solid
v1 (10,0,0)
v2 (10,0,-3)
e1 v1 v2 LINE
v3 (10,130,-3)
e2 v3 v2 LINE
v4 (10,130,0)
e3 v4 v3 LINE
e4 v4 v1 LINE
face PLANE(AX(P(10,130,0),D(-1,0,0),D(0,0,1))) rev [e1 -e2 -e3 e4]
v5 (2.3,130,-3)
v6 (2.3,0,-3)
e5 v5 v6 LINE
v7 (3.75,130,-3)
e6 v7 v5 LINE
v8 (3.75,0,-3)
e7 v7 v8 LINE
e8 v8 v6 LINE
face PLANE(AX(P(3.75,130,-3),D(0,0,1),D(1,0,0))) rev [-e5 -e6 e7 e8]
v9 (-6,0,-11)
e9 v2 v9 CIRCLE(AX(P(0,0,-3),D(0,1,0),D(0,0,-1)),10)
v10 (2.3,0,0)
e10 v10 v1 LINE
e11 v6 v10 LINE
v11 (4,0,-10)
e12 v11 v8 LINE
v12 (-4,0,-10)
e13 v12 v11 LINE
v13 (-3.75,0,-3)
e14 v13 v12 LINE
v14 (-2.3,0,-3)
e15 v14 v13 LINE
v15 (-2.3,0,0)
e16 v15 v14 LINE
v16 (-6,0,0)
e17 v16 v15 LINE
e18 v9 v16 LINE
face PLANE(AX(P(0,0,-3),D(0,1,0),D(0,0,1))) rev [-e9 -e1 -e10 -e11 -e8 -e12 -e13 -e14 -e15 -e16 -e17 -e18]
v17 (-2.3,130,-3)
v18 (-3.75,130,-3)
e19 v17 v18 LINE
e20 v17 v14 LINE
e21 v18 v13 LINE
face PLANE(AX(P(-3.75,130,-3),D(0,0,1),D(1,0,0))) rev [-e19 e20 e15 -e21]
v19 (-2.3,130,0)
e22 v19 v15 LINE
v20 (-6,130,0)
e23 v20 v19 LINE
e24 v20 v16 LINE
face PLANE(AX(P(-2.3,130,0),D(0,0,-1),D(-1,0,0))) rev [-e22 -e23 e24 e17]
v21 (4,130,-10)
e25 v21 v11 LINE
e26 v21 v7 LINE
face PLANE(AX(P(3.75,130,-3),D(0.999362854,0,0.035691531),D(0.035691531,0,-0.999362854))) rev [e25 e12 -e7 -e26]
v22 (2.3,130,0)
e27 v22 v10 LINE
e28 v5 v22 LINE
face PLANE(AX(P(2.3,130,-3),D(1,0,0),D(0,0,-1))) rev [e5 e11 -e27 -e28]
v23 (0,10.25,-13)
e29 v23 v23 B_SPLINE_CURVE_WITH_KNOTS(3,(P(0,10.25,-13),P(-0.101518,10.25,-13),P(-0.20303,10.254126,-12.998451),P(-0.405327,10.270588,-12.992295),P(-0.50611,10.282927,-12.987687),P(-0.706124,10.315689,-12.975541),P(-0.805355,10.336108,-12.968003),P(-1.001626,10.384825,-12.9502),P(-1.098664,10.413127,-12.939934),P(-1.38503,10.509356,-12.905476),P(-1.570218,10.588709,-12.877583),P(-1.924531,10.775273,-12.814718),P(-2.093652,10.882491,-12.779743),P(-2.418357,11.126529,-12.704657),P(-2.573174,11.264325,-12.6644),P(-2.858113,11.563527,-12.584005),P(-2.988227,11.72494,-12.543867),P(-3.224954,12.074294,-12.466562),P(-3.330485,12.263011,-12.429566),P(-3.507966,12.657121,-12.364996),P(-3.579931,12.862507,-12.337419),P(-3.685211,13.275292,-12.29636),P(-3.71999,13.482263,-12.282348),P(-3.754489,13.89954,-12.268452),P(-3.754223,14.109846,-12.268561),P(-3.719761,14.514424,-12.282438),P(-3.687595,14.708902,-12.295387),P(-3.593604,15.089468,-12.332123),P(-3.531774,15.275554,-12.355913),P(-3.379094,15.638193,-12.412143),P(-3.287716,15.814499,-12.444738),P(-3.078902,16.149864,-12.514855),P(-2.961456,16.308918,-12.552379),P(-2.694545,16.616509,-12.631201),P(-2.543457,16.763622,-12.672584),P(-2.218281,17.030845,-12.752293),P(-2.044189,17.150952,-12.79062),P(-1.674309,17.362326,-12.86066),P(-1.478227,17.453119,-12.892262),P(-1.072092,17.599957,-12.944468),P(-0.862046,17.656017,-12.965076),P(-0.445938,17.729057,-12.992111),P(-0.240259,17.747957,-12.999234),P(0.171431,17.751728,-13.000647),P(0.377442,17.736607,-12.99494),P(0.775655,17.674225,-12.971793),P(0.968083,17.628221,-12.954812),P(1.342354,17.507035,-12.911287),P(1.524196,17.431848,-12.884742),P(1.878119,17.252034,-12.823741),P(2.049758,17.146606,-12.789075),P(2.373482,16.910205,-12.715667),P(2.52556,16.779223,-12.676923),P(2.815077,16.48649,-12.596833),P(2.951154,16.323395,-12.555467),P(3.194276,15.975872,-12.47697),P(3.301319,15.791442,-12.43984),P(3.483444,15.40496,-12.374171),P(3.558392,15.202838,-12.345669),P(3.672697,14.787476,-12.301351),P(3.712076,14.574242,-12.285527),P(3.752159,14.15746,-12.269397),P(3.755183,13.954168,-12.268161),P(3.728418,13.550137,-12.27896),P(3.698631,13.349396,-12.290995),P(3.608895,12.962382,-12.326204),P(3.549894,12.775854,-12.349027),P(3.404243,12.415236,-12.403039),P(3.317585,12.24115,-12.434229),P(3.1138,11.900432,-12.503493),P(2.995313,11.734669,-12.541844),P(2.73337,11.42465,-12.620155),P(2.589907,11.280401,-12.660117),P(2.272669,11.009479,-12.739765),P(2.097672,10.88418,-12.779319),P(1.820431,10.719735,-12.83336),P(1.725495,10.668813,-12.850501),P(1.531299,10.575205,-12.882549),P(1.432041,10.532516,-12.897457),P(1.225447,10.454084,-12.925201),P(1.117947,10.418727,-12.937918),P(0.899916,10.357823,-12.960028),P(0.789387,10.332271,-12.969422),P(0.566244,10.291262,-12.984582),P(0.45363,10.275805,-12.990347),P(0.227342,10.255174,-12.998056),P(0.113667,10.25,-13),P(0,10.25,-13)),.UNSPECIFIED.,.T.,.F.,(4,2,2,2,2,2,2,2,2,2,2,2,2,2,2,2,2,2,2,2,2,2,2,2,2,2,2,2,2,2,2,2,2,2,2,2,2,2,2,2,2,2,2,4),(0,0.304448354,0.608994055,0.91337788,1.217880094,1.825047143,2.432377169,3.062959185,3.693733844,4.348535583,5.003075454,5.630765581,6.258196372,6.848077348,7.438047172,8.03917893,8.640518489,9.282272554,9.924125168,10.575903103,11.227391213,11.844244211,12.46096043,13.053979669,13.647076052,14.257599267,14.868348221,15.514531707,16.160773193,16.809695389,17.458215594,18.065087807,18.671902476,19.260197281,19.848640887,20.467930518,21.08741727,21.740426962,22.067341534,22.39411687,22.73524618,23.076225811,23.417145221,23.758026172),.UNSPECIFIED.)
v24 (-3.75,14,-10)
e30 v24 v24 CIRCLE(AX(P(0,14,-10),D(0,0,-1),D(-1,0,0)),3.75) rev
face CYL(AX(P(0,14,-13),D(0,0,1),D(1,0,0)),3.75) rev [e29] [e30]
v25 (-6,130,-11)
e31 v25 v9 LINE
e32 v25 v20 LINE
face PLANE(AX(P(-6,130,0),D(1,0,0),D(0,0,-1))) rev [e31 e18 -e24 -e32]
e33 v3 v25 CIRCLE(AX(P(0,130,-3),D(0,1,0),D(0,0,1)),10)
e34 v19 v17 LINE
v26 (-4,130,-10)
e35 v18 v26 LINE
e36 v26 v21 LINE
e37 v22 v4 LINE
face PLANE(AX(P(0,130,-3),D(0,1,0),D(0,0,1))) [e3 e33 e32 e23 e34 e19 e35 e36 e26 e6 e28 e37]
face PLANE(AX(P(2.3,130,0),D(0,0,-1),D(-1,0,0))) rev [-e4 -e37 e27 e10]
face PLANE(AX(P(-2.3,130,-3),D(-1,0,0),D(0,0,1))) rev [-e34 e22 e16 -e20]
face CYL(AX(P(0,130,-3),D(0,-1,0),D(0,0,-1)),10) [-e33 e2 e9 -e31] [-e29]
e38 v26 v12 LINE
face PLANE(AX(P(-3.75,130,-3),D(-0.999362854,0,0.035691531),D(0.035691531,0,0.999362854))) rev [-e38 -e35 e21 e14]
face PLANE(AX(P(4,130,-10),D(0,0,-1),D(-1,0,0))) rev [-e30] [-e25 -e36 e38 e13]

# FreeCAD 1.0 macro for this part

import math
import FreeCAD as App
import Part
import Sketcher

doc = App.newDocument("Part")
params = doc.addObject("Spreadsheet::Sheet", "Params")
for row, (alias, value) in enumerate([
    ("sketch1_radius", "10 mm"),
    ("sketch1_width", "8 mm"),
    ("sketch1_height", "3 mm"),
    ("sketch1_height2", "11 mm"),
    ("sketch1_width2", "7.7 mm"),
    ("pad1_length", "130 mm"),
    ("sketch2_diameter", "7.5 mm"),
], start=1):
    params.set(f"A{row}", alias)
    params.set(f"B{row}", "=" + value)
    params.setAlias(f"B{row}", alias)

body = doc.addObject("PartDesign::Body", "Body")

sketch1 = body.newObject("Sketcher::SketchObject", "Sketch")
sketch1.AttachmentSupport = (doc.getObject("XZ_Plane"), [""])
sketch1.MapMode = "FlatFace"
sketch1.addGeometry(Part.LineSegment(App.Vector(2.3, 0, 0), App.Vector(10, 0, 0)), False)
sketch1.addGeometry(Part.LineSegment(App.Vector(10, 0, 0), App.Vector(10, -3, 0)), False)
sketch1.addGeometry(Part.ArcOfCircle(Part.Circle(App.Vector(0, -3, 0), App.Vector(0, 0, 1), 10), math.radians(-90), math.radians(0)), False)
sketch1.addGeometry(Part.ArcOfCircle(Part.Circle(App.Vector(0, -3, 0), App.Vector(0, 0, 1), 10), math.radians(-127), math.radians(-90)), False)
sketch1.addGeometry(Part.LineSegment(App.Vector(-6, -11, 0), App.Vector(-6, 0, 0)), False)
sketch1.addGeometry(Part.LineSegment(App.Vector(-6, 0, 0), App.Vector(-2.3, 0, 0)), False)
sketch1.addGeometry(Part.LineSegment(App.Vector(-2.3, 0, 0), App.Vector(-2.3, -3, 0)), False)
sketch1.addGeometry(Part.LineSegment(App.Vector(-2.3, -3, 0), App.Vector(-3.8, -3, 0)), False)
sketch1.addGeometry(Part.LineSegment(App.Vector(-3.8, -3, 0), App.Vector(-4, -10, 0)), False)
sketch1.addGeometry(Part.LineSegment(App.Vector(-4, -10, 0), App.Vector(4, -10, 0)), False)
sketch1.addGeometry(Part.LineSegment(App.Vector(4, -10, 0), App.Vector(3.8, -3, 0)), False)
sketch1.addGeometry(Part.LineSegment(App.Vector(3.8, -3, 0), App.Vector(2.3, -3, 0)), False)
sketch1.addGeometry(Part.LineSegment(App.Vector(2.3, -3, 0), App.Vector(2.3, 0, 0)), False)
sketch1.addConstraint(Sketcher.Constraint("Coincident", 0, 2, 1, 1))
sketch1.addConstraint(Sketcher.Constraint("Tangent", 1, 2, 2, 2))
sketch1.addConstraint(Sketcher.Constraint("Tangent", 2, 1, 3, 2))
sketch1.addConstraint(Sketcher.Constraint("Coincident", 3, 1, 4, 1))
sketch1.addConstraint(Sketcher.Constraint("Coincident", 4, 2, 5, 1))
sketch1.addConstraint(Sketcher.Constraint("Coincident", 5, 2, 6, 1))
sketch1.addConstraint(Sketcher.Constraint("Coincident", 6, 2, 7, 1))
sketch1.addConstraint(Sketcher.Constraint("Coincident", 7, 2, 8, 1))
sketch1.addConstraint(Sketcher.Constraint("Coincident", 8, 2, 9, 1))
sketch1.addConstraint(Sketcher.Constraint("Coincident", 9, 2, 10, 1))
sketch1.addConstraint(Sketcher.Constraint("Coincident", 10, 2, 11, 1))
sketch1.addConstraint(Sketcher.Constraint("Coincident", 11, 2, 12, 1))
sketch1.addConstraint(Sketcher.Constraint("Coincident", 12, 2, 0, 1))
sketch1.addConstraint(Sketcher.Constraint("Horizontal", 0))
sketch1.addConstraint(Sketcher.Constraint("Vertical", 1))
sketch1.addConstraint(Sketcher.Constraint("Vertical", 4))
sketch1.addConstraint(Sketcher.Constraint("Horizontal", 5))
sketch1.addConstraint(Sketcher.Constraint("Vertical", 6))
sketch1.addConstraint(Sketcher.Constraint("Horizontal", 7))
sketch1.addConstraint(Sketcher.Constraint("Horizontal", 9))
sketch1.addConstraint(Sketcher.Constraint("Horizontal", 11))
sketch1.addConstraint(Sketcher.Constraint("Vertical", 12))
sketch1.addConstraint(Sketcher.Constraint("Equal", 2, 3))
sketch1.addConstraint(Sketcher.Constraint("Symmetric", 5, 2, 12, 2, -1, 1))
sketch1.addConstraint(Sketcher.Constraint("Symmetric", 7, 2, 10, 2, -2))
sketch1.addConstraint(Sketcher.Constraint("PointOnObject", 2, 3, -2))
sketch1.addConstraint(Sketcher.Constraint("PointOnObject", 0, 2, -1))
sketch1.addConstraint(Sketcher.Constraint("PointOnObject", 2, 1, -2))
sketch1.addConstraint(Sketcher.Constraint("Horizontal", 1, 2, 6, 2))
sketch1.addConstraint(Sketcher.Constraint("Equal", 8, 10))
sketch1.addConstraint(Sketcher.Constraint("Radius", 2, 10.0))
sketch1.addConstraint(Sketcher.Constraint("DistanceX", 9, 1, 9, 2, 8.0))
sketch1.addConstraint(Sketcher.Constraint("DistanceY", 1, 2, 1, 1, 3.0))
sketch1.addConstraint(Sketcher.Constraint("DistanceY", 4, 1, 4, 2, 11.0))
sketch1.addConstraint(Sketcher.Constraint("DistanceX", 0, 1, 0, 2, 7.7))
sketch1.addConstraint(Sketcher.Constraint("DistanceY", 8, 2, -1, 1, 10.0))
sketch1.addConstraint(Sketcher.Constraint("DistanceX", 7, 2, 7, 1, 1.45))
sketch1.setExpression("Constraints[30]", "Params.sketch1_radius")
sketch1.setExpression("Constraints[31]", "Params.sketch1_width")
sketch1.setExpression("Constraints[32]", "Params.sketch1_height")
sketch1.setExpression("Constraints[33]", "Params.sketch1_height2")
sketch1.setExpression("Constraints[34]", "Params.sketch1_width2")
pad1 = body.newObject("PartDesign::Pad", "Pad")
pad1.Profile = sketch1
pad1.setExpression("Length", "Params.pad1_length")
pad1.Reversed = True

sketch2 = body.newObject("Sketcher::SketchObject", "Sketch001")
sketch2.AttachmentSupport = (doc.getObject("XY_Plane"), [""])
sketch2.MapMode = "FlatFace"
sketch2.AttachmentOffset = App.Placement(App.Vector(0, 0, -3), App.Rotation())
sketch2.addGeometry(Part.Circle(App.Vector(0, 14, 0), App.Vector(0, 0, 1), 3.8), False)
sketch2.addConstraint(Sketcher.Constraint("PointOnObject", 0, 3, -2))
sketch2.addConstraint(Sketcher.Constraint("Diameter", 0, 7.5))
sketch2.addConstraint(Sketcher.Constraint("DistanceY", -1, 1, 0, 3, 14.0))
sketch2.setExpression("Constraints[1]", "Params.sketch2_diameter")
pocket1 = body.newObject("PartDesign::Pocket", "Pocket")
pocket1.Profile = sketch2
pocket1.Type = "ThroughAll"

doc.recompute()
